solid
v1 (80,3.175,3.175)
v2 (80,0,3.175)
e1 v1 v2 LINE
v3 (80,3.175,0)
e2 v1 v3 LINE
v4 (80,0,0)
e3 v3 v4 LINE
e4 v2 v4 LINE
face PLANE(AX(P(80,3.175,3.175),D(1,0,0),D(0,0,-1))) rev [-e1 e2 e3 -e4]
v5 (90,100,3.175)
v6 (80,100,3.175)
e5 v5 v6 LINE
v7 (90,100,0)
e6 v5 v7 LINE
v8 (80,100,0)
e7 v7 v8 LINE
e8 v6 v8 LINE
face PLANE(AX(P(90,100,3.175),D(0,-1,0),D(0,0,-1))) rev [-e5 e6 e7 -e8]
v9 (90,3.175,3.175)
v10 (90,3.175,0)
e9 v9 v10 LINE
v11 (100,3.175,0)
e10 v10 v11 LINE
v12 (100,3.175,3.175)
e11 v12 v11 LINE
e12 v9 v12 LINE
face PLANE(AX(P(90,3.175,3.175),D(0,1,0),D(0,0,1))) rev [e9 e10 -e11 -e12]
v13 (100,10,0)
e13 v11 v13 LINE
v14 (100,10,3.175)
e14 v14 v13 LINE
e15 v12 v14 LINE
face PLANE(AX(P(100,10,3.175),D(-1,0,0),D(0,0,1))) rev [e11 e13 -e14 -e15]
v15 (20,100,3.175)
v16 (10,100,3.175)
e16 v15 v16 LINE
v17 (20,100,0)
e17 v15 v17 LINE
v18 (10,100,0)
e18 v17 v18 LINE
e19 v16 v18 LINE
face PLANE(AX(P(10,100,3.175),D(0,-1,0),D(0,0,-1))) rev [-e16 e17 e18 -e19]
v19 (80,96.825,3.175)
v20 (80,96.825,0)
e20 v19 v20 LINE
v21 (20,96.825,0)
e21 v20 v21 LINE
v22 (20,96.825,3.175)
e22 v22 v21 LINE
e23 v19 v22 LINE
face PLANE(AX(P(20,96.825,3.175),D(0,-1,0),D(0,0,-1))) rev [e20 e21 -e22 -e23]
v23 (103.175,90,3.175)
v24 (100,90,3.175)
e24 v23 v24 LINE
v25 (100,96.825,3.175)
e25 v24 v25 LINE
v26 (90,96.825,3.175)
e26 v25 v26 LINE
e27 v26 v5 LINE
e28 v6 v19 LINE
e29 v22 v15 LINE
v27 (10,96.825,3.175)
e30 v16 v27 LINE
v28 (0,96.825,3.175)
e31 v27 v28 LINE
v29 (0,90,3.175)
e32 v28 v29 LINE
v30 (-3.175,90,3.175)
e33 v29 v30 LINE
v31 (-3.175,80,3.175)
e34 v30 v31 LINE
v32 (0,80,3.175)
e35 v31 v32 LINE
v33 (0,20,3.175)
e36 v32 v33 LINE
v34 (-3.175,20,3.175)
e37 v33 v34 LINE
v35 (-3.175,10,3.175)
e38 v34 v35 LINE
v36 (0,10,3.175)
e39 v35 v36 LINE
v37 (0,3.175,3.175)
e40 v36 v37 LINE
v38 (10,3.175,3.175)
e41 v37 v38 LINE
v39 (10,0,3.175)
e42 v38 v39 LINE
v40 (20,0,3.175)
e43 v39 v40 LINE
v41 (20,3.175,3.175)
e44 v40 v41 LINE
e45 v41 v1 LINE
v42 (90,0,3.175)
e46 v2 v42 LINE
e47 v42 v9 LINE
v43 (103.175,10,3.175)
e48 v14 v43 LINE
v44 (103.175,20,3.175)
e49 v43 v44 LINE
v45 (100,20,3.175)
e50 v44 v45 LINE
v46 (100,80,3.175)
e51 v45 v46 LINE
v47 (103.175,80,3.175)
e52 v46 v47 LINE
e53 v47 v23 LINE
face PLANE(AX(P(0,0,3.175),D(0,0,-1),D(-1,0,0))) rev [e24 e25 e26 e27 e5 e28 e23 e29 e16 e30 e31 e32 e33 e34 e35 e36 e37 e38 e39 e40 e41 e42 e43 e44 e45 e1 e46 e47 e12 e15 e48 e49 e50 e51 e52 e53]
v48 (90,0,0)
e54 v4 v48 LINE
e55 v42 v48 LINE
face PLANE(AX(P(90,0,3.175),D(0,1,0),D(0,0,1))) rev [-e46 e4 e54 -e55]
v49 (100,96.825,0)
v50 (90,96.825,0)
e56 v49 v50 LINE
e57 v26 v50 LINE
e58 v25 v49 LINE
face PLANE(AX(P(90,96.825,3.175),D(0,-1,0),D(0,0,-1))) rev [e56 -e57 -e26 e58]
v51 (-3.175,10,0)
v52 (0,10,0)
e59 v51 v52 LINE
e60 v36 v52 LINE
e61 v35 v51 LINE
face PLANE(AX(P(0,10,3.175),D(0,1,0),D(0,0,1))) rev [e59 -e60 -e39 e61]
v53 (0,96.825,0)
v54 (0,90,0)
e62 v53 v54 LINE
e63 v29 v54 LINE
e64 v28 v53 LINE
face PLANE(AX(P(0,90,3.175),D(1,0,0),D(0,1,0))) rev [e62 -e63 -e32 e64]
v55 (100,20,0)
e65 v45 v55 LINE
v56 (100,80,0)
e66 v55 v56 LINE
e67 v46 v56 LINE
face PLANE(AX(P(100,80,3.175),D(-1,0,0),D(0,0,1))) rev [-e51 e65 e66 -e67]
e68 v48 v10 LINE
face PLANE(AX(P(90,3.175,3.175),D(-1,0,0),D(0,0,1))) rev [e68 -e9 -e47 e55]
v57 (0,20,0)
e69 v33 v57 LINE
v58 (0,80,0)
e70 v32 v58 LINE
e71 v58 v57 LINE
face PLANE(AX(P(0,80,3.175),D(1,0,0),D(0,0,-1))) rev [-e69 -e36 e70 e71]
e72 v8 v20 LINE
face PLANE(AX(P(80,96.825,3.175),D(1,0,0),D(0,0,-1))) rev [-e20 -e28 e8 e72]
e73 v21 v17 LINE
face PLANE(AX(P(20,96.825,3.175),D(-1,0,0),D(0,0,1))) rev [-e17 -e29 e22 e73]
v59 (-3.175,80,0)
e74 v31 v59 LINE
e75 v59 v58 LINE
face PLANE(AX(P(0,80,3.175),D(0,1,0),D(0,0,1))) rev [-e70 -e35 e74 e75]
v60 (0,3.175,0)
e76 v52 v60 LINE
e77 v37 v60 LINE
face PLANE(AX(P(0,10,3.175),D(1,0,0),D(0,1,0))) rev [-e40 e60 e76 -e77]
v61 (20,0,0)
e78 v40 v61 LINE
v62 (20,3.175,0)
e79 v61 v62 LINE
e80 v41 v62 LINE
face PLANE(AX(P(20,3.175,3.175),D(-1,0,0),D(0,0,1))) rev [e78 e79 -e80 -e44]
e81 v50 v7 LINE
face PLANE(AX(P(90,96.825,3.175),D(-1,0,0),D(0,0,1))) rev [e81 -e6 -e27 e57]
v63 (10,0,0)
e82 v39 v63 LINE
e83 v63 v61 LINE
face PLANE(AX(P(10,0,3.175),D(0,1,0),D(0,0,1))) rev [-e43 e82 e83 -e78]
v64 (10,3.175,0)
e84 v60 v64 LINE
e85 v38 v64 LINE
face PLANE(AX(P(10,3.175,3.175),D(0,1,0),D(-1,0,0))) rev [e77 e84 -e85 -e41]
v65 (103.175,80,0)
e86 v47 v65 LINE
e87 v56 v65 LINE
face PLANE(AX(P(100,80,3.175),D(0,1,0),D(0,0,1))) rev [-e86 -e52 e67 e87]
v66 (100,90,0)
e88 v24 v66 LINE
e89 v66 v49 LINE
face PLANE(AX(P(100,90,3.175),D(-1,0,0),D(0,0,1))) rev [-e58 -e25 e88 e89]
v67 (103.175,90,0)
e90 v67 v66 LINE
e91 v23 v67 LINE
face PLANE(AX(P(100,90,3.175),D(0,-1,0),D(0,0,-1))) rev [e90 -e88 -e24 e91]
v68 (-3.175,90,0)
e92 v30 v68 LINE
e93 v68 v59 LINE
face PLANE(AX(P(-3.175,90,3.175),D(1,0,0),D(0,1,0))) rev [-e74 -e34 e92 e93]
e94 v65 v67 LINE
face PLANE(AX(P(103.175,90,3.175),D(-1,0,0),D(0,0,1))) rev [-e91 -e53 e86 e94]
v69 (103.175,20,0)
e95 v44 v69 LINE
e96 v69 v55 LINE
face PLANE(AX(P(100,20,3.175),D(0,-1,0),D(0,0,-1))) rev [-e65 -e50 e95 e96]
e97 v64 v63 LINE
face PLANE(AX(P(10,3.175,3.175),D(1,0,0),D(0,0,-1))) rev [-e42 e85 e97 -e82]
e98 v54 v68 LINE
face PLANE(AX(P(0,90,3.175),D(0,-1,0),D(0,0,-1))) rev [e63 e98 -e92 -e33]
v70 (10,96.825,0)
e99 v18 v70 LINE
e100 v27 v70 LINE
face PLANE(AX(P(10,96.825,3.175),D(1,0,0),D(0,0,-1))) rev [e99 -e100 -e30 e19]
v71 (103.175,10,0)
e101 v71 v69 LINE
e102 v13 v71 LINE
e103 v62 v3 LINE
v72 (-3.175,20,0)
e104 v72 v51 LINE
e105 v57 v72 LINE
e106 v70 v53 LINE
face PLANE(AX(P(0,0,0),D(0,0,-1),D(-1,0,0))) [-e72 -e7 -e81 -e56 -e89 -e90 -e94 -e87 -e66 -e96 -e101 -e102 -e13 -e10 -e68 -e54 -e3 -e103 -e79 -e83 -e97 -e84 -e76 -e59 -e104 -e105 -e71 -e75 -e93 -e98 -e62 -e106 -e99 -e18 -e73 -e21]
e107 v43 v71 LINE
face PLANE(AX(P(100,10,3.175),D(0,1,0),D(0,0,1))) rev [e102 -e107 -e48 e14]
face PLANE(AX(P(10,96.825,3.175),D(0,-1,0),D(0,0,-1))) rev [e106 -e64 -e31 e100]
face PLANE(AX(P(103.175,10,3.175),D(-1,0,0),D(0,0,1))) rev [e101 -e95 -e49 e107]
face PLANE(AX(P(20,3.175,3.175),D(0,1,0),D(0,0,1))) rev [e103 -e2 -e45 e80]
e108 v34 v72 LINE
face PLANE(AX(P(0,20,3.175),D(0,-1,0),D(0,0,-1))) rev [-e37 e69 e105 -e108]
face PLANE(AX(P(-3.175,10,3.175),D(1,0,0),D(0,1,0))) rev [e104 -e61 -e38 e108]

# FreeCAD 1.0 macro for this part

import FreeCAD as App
import Part
import Sketcher
from FreeCAD import Vector

doc = App.newDocument("Part")
body = doc.addObject("PartDesign::Body", "Body")

# Sketch on XY plane
sketch1 = body.newObject("Sketcher::SketchObject", "Sketch")
sketch1.AttachmentSupport = (doc.getObject("XY_Plane"), [""])
sketch1.MapMode = "FlatFace"
sketch1.addGeometry([
    Part.LineSegment(Vector(0, 3.2, 0), Vector(10, 3.2, 0)),  # 0
    Part.LineSegment(Vector(10, 3.2, 0), Vector(10, 0, 0)),  # 1
    Part.LineSegment(Vector(10, 0, 0), Vector(20, 0, 0)),  # 2
    Part.LineSegment(Vector(20, 0, 0), Vector(20, 3.2, 0)),  # 3
    Part.LineSegment(Vector(20, 3.2, 0), Vector(80, 3.2, 0)),  # 4
    Part.LineSegment(Vector(80, 3.2, 0), Vector(80, 0, 0)),  # 5
    Part.LineSegment(Vector(80, 0, 0), Vector(90, 0, 0)),  # 6
    Part.LineSegment(Vector(90, 0, 0), Vector(90, 3.2, 0)),  # 7
    Part.LineSegment(Vector(90, 3.2, 0), Vector(100, 3.2, 0)),  # 8
    Part.LineSegment(Vector(100, 3.2, 0), Vector(100, 10, 0)),  # 9
    Part.LineSegment(Vector(100, 10, 0), Vector(103.2, 10, 0)),  # 10
    Part.LineSegment(Vector(103.2, 10, 0), Vector(103.2, 20, 0)),  # 11
    Part.LineSegment(Vector(103.2, 20, 0), Vector(100, 20, 0)),  # 12
    Part.LineSegment(Vector(100, 20, 0), Vector(100, 80, 0)),  # 13
    Part.LineSegment(Vector(100, 80, 0), Vector(103.2, 80, 0)),  # 14
    Part.LineSegment(Vector(103.2, 80, 0), Vector(103.2, 90, 0)),  # 15
    Part.LineSegment(Vector(103.2, 90, 0), Vector(100, 90, 0)),  # 16
    Part.LineSegment(Vector(100, 90, 0), Vector(100, 96.8, 0)),  # 17
    Part.LineSegment(Vector(100, 96.8, 0), Vector(90, 96.8, 0)),  # 18
    Part.LineSegment(Vector(90, 96.8, 0), Vector(90, 100, 0)),  # 19
    Part.LineSegment(Vector(90, 100, 0), Vector(80, 100, 0)),  # 20
    Part.LineSegment(Vector(80, 100, 0), Vector(80, 96.8, 0)),  # 21
    Part.LineSegment(Vector(80, 96.8, 0), Vector(20, 96.8, 0)),  # 22
    Part.LineSegment(Vector(20, 96.8, 0), Vector(20, 100, 0)),  # 23
    Part.LineSegment(Vector(20, 100, 0), Vector(10, 100, 0)),  # 24
    Part.LineSegment(Vector(10, 100, 0), Vector(10, 96.8, 0)),  # 25
    Part.LineSegment(Vector(10, 96.8, 0), Vector(0, 96.8, 0)),  # 26
    Part.LineSegment(Vector(0, 96.8, 0), Vector(0, 90, 0)),  # 27
    Part.LineSegment(Vector(0, 90, 0), Vector(-3.2, 90, 0)),  # 28
    Part.LineSegment(Vector(-3.2, 90, 0), Vector(-3.2, 80, 0)),  # 29
    Part.LineSegment(Vector(-3.2, 80, 0), Vector(0, 80, 0)),  # 30
    Part.LineSegment(Vector(0, 80, 0), Vector(0, 20, 0)),  # 31
    Part.LineSegment(Vector(0, 20, 0), Vector(-3.2, 20, 0)),  # 32
    Part.LineSegment(Vector(-3.2, 20, 0), Vector(-3.2, 10, 0)),  # 33
    Part.LineSegment(Vector(-3.2, 10, 0), Vector(0, 10, 0)),  # 34
    Part.LineSegment(Vector(0, 10, 0), Vector(0, 3.2, 0)),  # 35
], False)
sketch1.addConstraint([
    Sketcher.Constraint("Coincident", 0, 2, 1, 1),
    Sketcher.Constraint("Coincident", 1, 2, 2, 1),
    Sketcher.Constraint("Coincident", 2, 2, 3, 1),
    Sketcher.Constraint("Coincident", 3, 2, 4, 1),
    Sketcher.Constraint("Coincident", 4, 2, 5, 1),
    Sketcher.Constraint("Coincident", 5, 2, 6, 1),
    Sketcher.Constraint("Coincident", 6, 2, 7, 1),
    Sketcher.Constraint("Coincident", 7, 2, 8, 1),
    Sketcher.Constraint("Coincident", 8, 2, 9, 1),
    Sketcher.Constraint("Coincident", 9, 2, 10, 1),
    Sketcher.Constraint("Coincident", 10, 2, 11, 1),
    Sketcher.Constraint("Coincident", 11, 2, 12, 1),
    Sketcher.Constraint("Coincident", 12, 2, 13, 1),
    Sketcher.Constraint("Coincident", 13, 2, 14, 1),
    Sketcher.Constraint("Coincident", 14, 2, 15, 1),
    Sketcher.Constraint("Coincident", 15, 2, 16, 1),
    Sketcher.Constraint("Coincident", 16, 2, 17, 1),
    Sketcher.Constraint("Coincident", 17, 2, 18, 1),
    Sketcher.Constraint("Coincident", 18, 2, 19, 1),
    Sketcher.Constraint("Coincident", 19, 2, 20, 1),
    Sketcher.Constraint("Coincident", 20, 2, 21, 1),
    Sketcher.Constraint("Coincident", 21, 2, 22, 1),
    Sketcher.Constraint("Coincident", 22, 2, 23, 1),
    Sketcher.Constraint("Coincident", 23, 2, 24, 1),
    Sketcher.Constraint("Coincident", 24, 2, 25, 1),
    Sketcher.Constraint("Coincident", 25, 2, 26, 1),
    Sketcher.Constraint("Coincident", 26, 2, 27, 1),
    Sketcher.Constraint("Coincident", 27, 2, 28, 1),
    Sketcher.Constraint("Coincident", 28, 2, 29, 1),
    Sketcher.Constraint("Coincident", 29, 2, 30, 1),
    Sketcher.Constraint("Coincident", 30, 2, 31, 1),
    Sketcher.Constraint("Coincident", 31, 2, 32, 1),
    Sketcher.Constraint("Coincident", 32, 2, 33, 1),
    Sketcher.Constraint("Coincident", 33, 2, 34, 1),
    Sketcher.Constraint("Coincident", 34, 2, 35, 1),
    Sketcher.Constraint("Coincident", 35, 2, 0, 1),
    Sketcher.Constraint("Horizontal", 0),
    Sketcher.Constraint("Vertical", 1),
    Sketcher.Constraint("Horizontal", 2),
    Sketcher.Constraint("Vertical", 3),
    Sketcher.Constraint("Horizontal", 4),
    Sketcher.Constraint("Vertical", 5),
    Sketcher.Constraint("Horizontal", 6),
    Sketcher.Constraint("Vertical", 7),
    Sketcher.Constraint("Horizontal", 8),
    Sketcher.Constraint("Vertical", 9),
    Sketcher.Constraint("Horizontal", 10),
    Sketcher.Constraint("Vertical", 11),
    Sketcher.Constraint("Horizontal", 12),
    Sketcher.Constraint("Vertical", 13),
    Sketcher.Constraint("Horizontal", 14),
    Sketcher.Constraint("Vertical", 15),
    Sketcher.Constraint("Horizontal", 16),
    Sketcher.Constraint("Vertical", 17),
    Sketcher.Constraint("Horizontal", 18),
    Sketcher.Constraint("Vertical", 19),
    Sketcher.Constraint("Horizontal", 20),
    Sketcher.Constraint("Vertical", 21),
    Sketcher.Constraint("Horizontal", 22),
    Sketcher.Constraint("Vertical", 23),
    Sketcher.Constraint("Horizontal", 24),
    Sketcher.Constraint("Vertical", 25),
    Sketcher.Constraint("Horizontal", 26),
    Sketcher.Constraint("Vertical", 27),
    Sketcher.Constraint("Horizontal", 28),
    Sketcher.Constraint("Vertical", 29),
    Sketcher.Constraint("Horizontal", 30),
    Sketcher.Constraint("Vertical", 31),
    Sketcher.Constraint("Horizontal", 32),
    Sketcher.Constraint("Vertical", 33),
    Sketcher.Constraint("Horizontal", 34),
    Sketcher.Constraint("Vertical", 35),
    Sketcher.Constraint("PointOnObject", 1, 2, -1),
    Sketcher.Constraint("PointOnObject", 5, 2, -1),
    Sketcher.Constraint("PointOnObject", 26, 2, -2),
    Sketcher.Constraint("PointOnObject", 30, 2, -2),
    Sketcher.Constraint("PointOnObject", 34, 2, -2),
    Sketcher.Constraint("Horizontal", 0, 2, 3, 2),
    Sketcher.Constraint("Horizontal", 4, 2, 7, 2),
    Sketcher.Constraint("Horizontal", 18, 2, 21, 2),
    Sketcher.Constraint("Horizontal", 20, 2, 23, 2),
    Sketcher.Constraint("Horizontal", 22, 2, 25, 2),
    Sketcher.Constraint("Horizontal", 16, 2, 27, 2),
    Sketcher.Constraint("Horizontal", 14, 2, 29, 2),
    Sketcher.Constraint("Horizontal", 12, 2, 31, 2),
    Sketcher.Constraint("Horizontal", 10, 2, 33, 2),
    Sketcher.Constraint("Vertical", 9, 2, 12, 2),
    Sketcher.Constraint("Vertical", 11, 2, 14, 2),
    Sketcher.Constraint("Vertical", 13, 2, 16, 2),
    Sketcher.Constraint("Vertical", 7, 2, 18, 2),
    Sketcher.Constraint("Vertical", 5, 2, 20, 2),
    Sketcher.Constraint("Vertical", 3, 2, 22, 2),
    Sketcher.Constraint("Vertical", 1, 2, 24, 2),
    Sketcher.Constraint("Vertical", 29, 2, 32, 2),
    Sketcher.Constraint("Equal", 0, 2),
    Sketcher.Constraint("Equal", 2, 6),
    Sketcher.Constraint("Equal", 6, 8),
    Sketcher.Constraint("Equal", 16, 28),
    Sketcher.Constraint("Equal", 34, 1),
    Sketcher.Constraint("Equal", 26, 11),
    Sketcher.Constraint("Equal", 22, 13),
    Sketcher.Constraint("Equal", 11, 15),
    Sketcher.Constraint("Equal", 9, 17),
    Sketcher.Constraint("Equal", 7, 19),
    Sketcher.Constraint("DistanceX", 0, 1, 0, 2, 10.0),
    Sketcher.Constraint("DistanceX", 4, 1, 4, 2, 60.0),
    Sketcher.Constraint("DistanceY", -1, 1, 9, 2, 10.0),
    Sketcher.Constraint("DistanceX", 10, 1, 10, 2, 3.175),
])
pad1 = body.newObject("PartDesign::Pad", "Pad")
pad1.Profile = sketch1
pad1.Length = 3.175

doc.recompute()
